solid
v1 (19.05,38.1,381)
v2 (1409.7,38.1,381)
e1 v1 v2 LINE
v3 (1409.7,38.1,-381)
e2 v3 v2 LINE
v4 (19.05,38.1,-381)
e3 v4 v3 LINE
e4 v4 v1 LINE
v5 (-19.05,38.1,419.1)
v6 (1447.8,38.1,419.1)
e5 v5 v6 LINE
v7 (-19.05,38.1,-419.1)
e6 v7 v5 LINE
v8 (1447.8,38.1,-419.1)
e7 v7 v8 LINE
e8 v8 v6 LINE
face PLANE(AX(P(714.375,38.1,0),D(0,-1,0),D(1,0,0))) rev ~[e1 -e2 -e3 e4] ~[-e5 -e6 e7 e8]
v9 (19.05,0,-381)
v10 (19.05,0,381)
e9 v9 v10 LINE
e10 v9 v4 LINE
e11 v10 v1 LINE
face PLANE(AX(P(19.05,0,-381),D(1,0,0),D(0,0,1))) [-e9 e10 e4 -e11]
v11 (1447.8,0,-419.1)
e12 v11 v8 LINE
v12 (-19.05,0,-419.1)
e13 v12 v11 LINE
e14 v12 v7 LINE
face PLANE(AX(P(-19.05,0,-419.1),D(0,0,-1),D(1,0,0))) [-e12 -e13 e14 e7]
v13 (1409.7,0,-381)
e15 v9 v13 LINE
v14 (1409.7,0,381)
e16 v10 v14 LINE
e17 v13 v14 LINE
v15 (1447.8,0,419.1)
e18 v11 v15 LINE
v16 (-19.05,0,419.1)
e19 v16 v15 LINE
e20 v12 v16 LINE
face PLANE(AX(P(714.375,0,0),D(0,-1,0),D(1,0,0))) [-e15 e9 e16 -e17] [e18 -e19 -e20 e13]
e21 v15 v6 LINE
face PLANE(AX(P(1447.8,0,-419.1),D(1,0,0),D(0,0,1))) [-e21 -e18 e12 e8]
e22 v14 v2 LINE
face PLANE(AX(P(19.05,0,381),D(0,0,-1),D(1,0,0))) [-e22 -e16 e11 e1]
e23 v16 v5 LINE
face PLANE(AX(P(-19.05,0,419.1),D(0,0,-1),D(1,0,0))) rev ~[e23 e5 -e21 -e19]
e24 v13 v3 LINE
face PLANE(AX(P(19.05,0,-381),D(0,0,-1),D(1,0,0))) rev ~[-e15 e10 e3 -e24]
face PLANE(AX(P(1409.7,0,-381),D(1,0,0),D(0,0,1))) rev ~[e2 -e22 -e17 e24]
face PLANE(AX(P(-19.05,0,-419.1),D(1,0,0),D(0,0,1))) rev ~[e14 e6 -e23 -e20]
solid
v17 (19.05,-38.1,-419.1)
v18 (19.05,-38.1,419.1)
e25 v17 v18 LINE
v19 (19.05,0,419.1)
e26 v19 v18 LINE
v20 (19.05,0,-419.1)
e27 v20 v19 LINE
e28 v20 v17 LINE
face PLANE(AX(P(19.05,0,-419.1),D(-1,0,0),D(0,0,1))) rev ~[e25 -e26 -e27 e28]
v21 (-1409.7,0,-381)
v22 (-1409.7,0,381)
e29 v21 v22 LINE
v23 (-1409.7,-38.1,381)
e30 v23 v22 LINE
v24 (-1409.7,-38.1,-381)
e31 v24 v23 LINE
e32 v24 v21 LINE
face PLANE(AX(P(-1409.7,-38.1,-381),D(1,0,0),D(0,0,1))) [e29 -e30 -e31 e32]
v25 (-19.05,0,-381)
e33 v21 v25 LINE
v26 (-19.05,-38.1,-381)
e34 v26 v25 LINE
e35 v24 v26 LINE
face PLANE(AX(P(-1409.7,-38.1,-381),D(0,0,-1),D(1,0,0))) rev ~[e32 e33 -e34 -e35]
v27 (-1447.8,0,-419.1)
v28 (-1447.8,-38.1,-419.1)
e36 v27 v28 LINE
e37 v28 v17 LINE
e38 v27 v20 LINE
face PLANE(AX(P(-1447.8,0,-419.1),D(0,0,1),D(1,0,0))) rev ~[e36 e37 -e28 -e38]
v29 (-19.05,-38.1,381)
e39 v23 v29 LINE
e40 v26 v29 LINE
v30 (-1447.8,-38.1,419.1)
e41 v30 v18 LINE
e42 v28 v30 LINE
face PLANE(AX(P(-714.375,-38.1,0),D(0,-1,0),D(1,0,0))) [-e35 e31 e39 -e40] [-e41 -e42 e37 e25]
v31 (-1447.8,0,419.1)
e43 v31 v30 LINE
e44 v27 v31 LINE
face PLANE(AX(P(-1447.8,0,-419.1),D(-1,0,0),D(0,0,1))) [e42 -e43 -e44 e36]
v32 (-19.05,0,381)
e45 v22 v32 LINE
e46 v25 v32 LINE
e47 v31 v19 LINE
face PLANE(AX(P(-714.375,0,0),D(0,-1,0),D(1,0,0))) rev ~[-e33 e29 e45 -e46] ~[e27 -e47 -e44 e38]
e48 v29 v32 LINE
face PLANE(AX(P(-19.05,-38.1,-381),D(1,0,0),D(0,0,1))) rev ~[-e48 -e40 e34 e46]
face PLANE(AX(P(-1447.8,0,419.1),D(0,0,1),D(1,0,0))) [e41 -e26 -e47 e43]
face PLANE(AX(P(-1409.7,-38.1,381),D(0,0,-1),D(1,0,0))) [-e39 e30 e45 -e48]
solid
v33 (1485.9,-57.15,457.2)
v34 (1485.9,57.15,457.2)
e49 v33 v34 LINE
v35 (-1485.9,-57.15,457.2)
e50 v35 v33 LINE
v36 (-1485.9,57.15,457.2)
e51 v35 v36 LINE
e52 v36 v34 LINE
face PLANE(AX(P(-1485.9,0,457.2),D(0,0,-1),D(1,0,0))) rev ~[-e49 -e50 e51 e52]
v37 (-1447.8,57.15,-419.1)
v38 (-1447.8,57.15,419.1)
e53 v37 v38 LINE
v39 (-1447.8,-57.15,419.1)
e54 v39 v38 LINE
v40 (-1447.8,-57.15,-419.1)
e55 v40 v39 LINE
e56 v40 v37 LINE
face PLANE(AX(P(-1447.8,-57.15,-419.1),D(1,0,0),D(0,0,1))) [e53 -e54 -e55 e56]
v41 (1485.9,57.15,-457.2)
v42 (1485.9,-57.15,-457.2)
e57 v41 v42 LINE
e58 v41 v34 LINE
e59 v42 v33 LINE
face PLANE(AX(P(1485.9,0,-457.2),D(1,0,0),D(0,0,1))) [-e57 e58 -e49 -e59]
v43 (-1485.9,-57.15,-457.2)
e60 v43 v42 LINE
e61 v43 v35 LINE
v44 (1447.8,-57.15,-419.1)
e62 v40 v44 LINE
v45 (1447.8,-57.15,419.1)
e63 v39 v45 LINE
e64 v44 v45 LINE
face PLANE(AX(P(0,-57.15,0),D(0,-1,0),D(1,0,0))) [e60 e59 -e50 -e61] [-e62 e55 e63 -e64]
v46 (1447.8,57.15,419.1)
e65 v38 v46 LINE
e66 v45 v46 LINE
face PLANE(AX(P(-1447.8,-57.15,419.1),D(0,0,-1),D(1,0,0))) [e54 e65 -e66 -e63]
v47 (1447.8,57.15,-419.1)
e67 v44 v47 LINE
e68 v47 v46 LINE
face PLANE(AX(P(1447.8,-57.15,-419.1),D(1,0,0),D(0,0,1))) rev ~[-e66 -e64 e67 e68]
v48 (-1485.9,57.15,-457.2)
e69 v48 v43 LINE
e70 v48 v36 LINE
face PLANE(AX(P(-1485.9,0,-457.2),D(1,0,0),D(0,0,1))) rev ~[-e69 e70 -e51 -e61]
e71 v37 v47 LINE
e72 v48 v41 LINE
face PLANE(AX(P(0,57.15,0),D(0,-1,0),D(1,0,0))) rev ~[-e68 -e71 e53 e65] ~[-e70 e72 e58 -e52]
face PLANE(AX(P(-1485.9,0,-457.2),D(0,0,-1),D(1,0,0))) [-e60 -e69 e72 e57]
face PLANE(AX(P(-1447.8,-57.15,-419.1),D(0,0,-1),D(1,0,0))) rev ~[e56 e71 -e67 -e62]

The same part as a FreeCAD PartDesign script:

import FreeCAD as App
import Part
import Sketcher
Q = App.Units.Quantity

doc = App.newDocument("Part")
params = doc.addObject("Spreadsheet::Sheet", "Params")
for row, (alias, value) in enumerate([
    ("sketch1_width", "117 in"),
    ("sketch1_height", "36 in"),
    ("pad1_length", "4.5 in"),
    ("sketch2_width", "114 in"),
    ("sketch2_height", "33 in"),
    ("sketch3_height", "33 in"),
    ("sketch3_width", "57.75 in"),
    ("pad2_length", "1.5 in"),
    ("sketch4_height", "30 in"),
    ("sketch4_width", "54.75 in"),
    ("sketch5_height", "33 in"),
    ("sketch5_width", "57.75 in"),
    ("pad3_length", "1.5 in"),
    ("sketch6_height", "30 in"),
    ("sketch6_width", "54.75 in"),
], start=1):
    params.set(f"A{row}", alias)
    params.set(f"B{row}", "=" + value)
    params.setAlias(f"B{row}", alias)

body = doc.addObject("PartDesign::Body", "Body")

# Sketch on XZ plane
sketch1 = body.newObject("Sketcher::SketchObject", "Sketch")
sketch1.AttachmentSupport = (doc.getObject("XZ_Plane"), [""])
sketch1.MapMode = "FlatFace"
sketch1.addGeometry([
    Part.LineSegment(App.Vector(-1486, 457, 0), App.Vector(-1486, -457, 0)),
    Part.LineSegment(App.Vector(-1486, -457, 0), App.Vector(1486, -457, 0)),
    Part.LineSegment(App.Vector(1486, -457, 0), App.Vector(1486, 457, 0)),
    Part.LineSegment(App.Vector(1486, 457, 0), App.Vector(-1486, 457, 0)),
], False)
sketch1.addConstraint([
    Sketcher.Constraint("Coincident", 0, 2, 1, 1),
    Sketcher.Constraint("Coincident", 1, 2, 2, 1),
    Sketcher.Constraint("Coincident", 2, 2, 3, 1),
    Sketcher.Constraint("Coincident", 3, 2, 0, 1),
    Sketcher.Constraint("Vertical", 0),
    Sketcher.Constraint("Horizontal", 1),
    Sketcher.Constraint("Vertical", 2),
    Sketcher.Constraint("Horizontal", 3),
    Sketcher.Constraint("Symmetric", 0, 2, 2, 2, -1, 1),
    Sketcher.Constraint("DistanceX", 1, 1, 1, 2, Q("117 in")),
    Sketcher.Constraint("DistanceY", 0, 2, 0, 1, Q("36 in")),
])
sketch1.setExpression("Constraints[9]", "Params.sketch1_width")
sketch1.setExpression("Constraints[10]", "Params.sketch1_height")
pad1 = body.newObject("PartDesign::Pad", "Pad")
pad1.Profile = sketch1
pad1.setExpression("Length", "Params.pad1_length")
pad1.Midplane = True

# Sketch on XZ plane
sketch2 = body.newObject("Sketcher::SketchObject", "Sketch001")
sketch2.AttachmentSupport = (doc.getObject("XZ_Plane"), [""])
sketch2.MapMode = "FlatFace"
sketch2.AttachmentOffset = App.Placement(App.Vector(0, 0, 2.25 * 25.4), App.Rotation())
sketch2.addGeometry([
    Part.LineSegment(App.Vector(-1448, 419, 0), App.Vector(-1448, -419, 0)),
    Part.LineSegment(App.Vector(-1448, -419, 0), App.Vector(1448, -419, 0)),
    Part.LineSegment(App.Vector(1448, -419, 0), App.Vector(1448, 419, 0)),
    Part.LineSegment(App.Vector(1448, 419, 0), App.Vector(-1448, 419, 0)),
], False)
sketch2.addConstraint([
    Sketcher.Constraint("Coincident", 0, 2, 1, 1),
    Sketcher.Constraint("Coincident", 1, 2, 2, 1),
    Sketcher.Constraint("Coincident", 2, 2, 3, 1),
    Sketcher.Constraint("Coincident", 3, 2, 0, 1),
    Sketcher.Constraint("Vertical", 0),
    Sketcher.Constraint("Horizontal", 1),
    Sketcher.Constraint("Vertical", 2),
    Sketcher.Constraint("Horizontal", 3),
    Sketcher.Constraint("Symmetric", 0, 2, 2, 2, -1, 1),
    Sketcher.Constraint("DistanceX", 1, 1, 1, 2, Q("114 in")),
    Sketcher.Constraint("DistanceY", 0, 2, 0, 1, Q("33 in")),
])
sketch2.setExpression("Constraints[9]", "Params.sketch2_width")
sketch2.setExpression("Constraints[10]", "Params.sketch2_height")
pocket1 = body.newObject("PartDesign::Pocket", "Pocket")
pocket1.Profile = sketch2
pocket1.Type = "ThroughAll"
body2 = doc.addObject("PartDesign::Body", "Body001")

# Sketch on XZ plane
sketch3 = body2.newObject("Sketcher::SketchObject", "Sketch002")
sketch3.AttachmentSupport = (doc.getObject("XZ_Plane001"), [""])
sketch3.MapMode = "FlatFace"
sketch3.addGeometry([
    Part.LineSegment(App.Vector(-1448, 419, 0), App.Vector(-1448, -419, 0)),
    Part.LineSegment(App.Vector(-1448, -419, 0), App.Vector(19, -419, 0)),
    Part.LineSegment(App.Vector(19, -419, 0), App.Vector(19, 419, 0)),
    Part.LineSegment(App.Vector(19, 419, 0), App.Vector(-1448, 419, 0)),
], False)
sketch3.addConstraint([
    Sketcher.Constraint("Coincident", 0, 2, 1, 1),
    Sketcher.Constraint("Coincident", 1, 2, 2, 1),
    Sketcher.Constraint("Coincident", 2, 2, 3, 1),
    Sketcher.Constraint("Coincident", 3, 2, 0, 1),
    Sketcher.Constraint("Vertical", 0),
    Sketcher.Constraint("Horizontal", 1),
    Sketcher.Constraint("Vertical", 2),
    Sketcher.Constraint("Horizontal", 3),
    Sketcher.Constraint("DistanceY", 0, 2, 0, 1, Q("33 in")),
    Sketcher.Constraint("DistanceX", 0, 2, -1, 1, Q("57 in")),
    Sketcher.Constraint("DistanceX", 1, 1, 1, 2, Q("57.75 in")),
    Sketcher.Constraint("DistanceY", 0, 2, -1, 1, Q("16.5 in")),
])
sketch3.setExpression("Constraints[8]", "Params.sketch3_height")
sketch3.setExpression("Constraints[10]", "Params.sketch3_width")
pad2 = body2.newObject("PartDesign::Pad", "Pad001")
pad2.Profile = sketch3
pad2.setExpression("Length", "Params.pad2_length")

# Sketch on XZ plane
sketch4 = body2.newObject("Sketcher::SketchObject", "Sketch003")
sketch4.AttachmentSupport = (doc.getObject("XZ_Plane001"), [""])
sketch4.MapMode = "FlatFace"
sketch4.AttachmentOffset = App.Placement(App.Vector(0, 0, 1.5 * 25.4), App.Rotation())
sketch4.addGeometry([
    Part.LineSegment(App.Vector(-1410, 381, 0), App.Vector(-1410, -381, 0)),
    Part.LineSegment(App.Vector(-1410, -381, 0), App.Vector(-19, -381, 0)),
    Part.LineSegment(App.Vector(-19, -381, 0), App.Vector(-19, 381, 0)),
    Part.LineSegment(App.Vector(-19, 381, 0), App.Vector(-1410, 381, 0)),
], False)
sketch4.addConstraint([
    Sketcher.Constraint("Coincident", 0, 2, 1, 1),
    Sketcher.Constraint("Coincident", 1, 2, 2, 1),
    Sketcher.Constraint("Coincident", 2, 2, 3, 1),
    Sketcher.Constraint("Coincident", 3, 2, 0, 1),
    Sketcher.Constraint("Vertical", 0),
    Sketcher.Constraint("Horizontal", 1),
    Sketcher.Constraint("Vertical", 2),
    Sketcher.Constraint("Horizontal", 3),
    Sketcher.Constraint("DistanceY", 0, 2, 0, 1, Q("30 in")),
    Sketcher.Constraint("DistanceY", 0, 2, -1, 1, Q("15 in")),
    Sketcher.Constraint("DistanceX", 1, 1, 1, 2, Q("54.75 in")),
    Sketcher.Constraint("DistanceX", 0, 2, -1, 1, Q("55.5 in")),
])
sketch4.setExpression("Constraints[8]", "Params.sketch4_height")
sketch4.setExpression("Constraints[10]", "Params.sketch4_width")
pocket2 = body2.newObject("PartDesign::Pocket", "Pocket001")
pocket2.Profile = sketch4
pocket2.Type = "ThroughAll"
body3 = doc.addObject("PartDesign::Body", "Body002")

# Sketch on XZ plane
sketch5 = body3.newObject("Sketcher::SketchObject", "Sketch004")
sketch5.AttachmentSupport = (doc.getObject("XZ_Plane002"), [""])
sketch5.MapMode = "FlatFace"
sketch5.addGeometry([
    Part.LineSegment(App.Vector(-19, 419, 0), App.Vector(-19, -419, 0)),
    Part.LineSegment(App.Vector(-19, -419, 0), App.Vector(1448, -419, 0)),
    Part.LineSegment(App.Vector(1448, -419, 0), App.Vector(1448, 419, 0)),
    Part.LineSegment(App.Vector(1448, 419, 0), App.Vector(-19, 419, 0)),
], False)
sketch5.addConstraint([
    Sketcher.Constraint("Coincident", 0, 2, 1, 1),
    Sketcher.Constraint("Coincident", 1, 2, 2, 1),
    Sketcher.Constraint("Coincident", 2, 2, 3, 1),
    Sketcher.Constraint("Coincident", 3, 2, 0, 1),
    Sketcher.Constraint("Vertical", 0),
    Sketcher.Constraint("Horizontal", 1),
    Sketcher.Constraint("Vertical", 2),
    Sketcher.Constraint("Horizontal", 3),
    Sketcher.Constraint("DistanceY", 0, 2, 0, 1, Q("33 in")),
    Sketcher.Constraint("DistanceX", -1, 1, 1, 2, Q("57 in")),
    Sketcher.Constraint("DistanceX", 1, 1, 1, 2, Q("57.75 in")),
    Sketcher.Constraint("DistanceY", 0, 2, -1, 1, Q("16.5 in")),
])
sketch5.setExpression("Constraints[8]", "Params.sketch5_height")
sketch5.setExpression("Constraints[10]", "Params.sketch5_width")
pad3 = body3.newObject("PartDesign::Pad", "Pad002")
pad3.Profile = sketch5
pad3.setExpression("Length", "Params.pad3_length")
pad3.Reversed = True

# Sketch on XZ plane
sketch6 = body3.newObject("Sketcher::SketchObject", "Sketch005")
sketch6.AttachmentSupport = (doc.getObject("XZ_Plane002"), [""])
sketch6.MapMode = "FlatFace"
sketch6.addGeometry([
    Part.LineSegment(App.Vector(19, 381, 0), App.Vector(19, -381, 0)),
    Part.LineSegment(App.Vector(19, -381, 0), App.Vector(1410, -381, 0)),
    Part.LineSegment(App.Vector(1410, -381, 0), App.Vector(1410, 381, 0)),
    Part.LineSegment(App.Vector(1410, 381, 0), App.Vector(19, 381, 0)),
], False)
sketch6.addConstraint([
    Sketcher.Constraint("Coincident", 0, 2, 1, 1),
    Sketcher.Constraint("Coincident", 1, 2, 2, 1),
    Sketcher.Constraint("Coincident", 2, 2, 3, 1),
    Sketcher.Constraint("Coincident", 3, 2, 0, 1),
    Sketcher.Constraint("Vertical", 0),
    Sketcher.Constraint("Horizontal", 1),
    Sketcher.Constraint("Vertical", 2),
    Sketcher.Constraint("Horizontal", 3),
    Sketcher.Constraint("DistanceY", 0, 2, 0, 1, Q("30 in")),
    Sketcher.Constraint("DistanceY", 0, 2, -1, 1, Q("15 in")),
    Sketcher.Constraint("DistanceX", 1, 1, 1, 2, Q("54.75 in")),
    Sketcher.Constraint("DistanceX", -1, 1, 1, 2, Q("55.5 in")),
])
sketch6.setExpression("Constraints[8]", "Params.sketch6_height")
sketch6.setExpression("Constraints[10]", "Params.sketch6_width")
pocket3 = body3.newObject("PartDesign::Pocket", "Pocket002")
pocket3.Profile = sketch6
pocket3.Type = "ThroughAll"

doc.recompute()
